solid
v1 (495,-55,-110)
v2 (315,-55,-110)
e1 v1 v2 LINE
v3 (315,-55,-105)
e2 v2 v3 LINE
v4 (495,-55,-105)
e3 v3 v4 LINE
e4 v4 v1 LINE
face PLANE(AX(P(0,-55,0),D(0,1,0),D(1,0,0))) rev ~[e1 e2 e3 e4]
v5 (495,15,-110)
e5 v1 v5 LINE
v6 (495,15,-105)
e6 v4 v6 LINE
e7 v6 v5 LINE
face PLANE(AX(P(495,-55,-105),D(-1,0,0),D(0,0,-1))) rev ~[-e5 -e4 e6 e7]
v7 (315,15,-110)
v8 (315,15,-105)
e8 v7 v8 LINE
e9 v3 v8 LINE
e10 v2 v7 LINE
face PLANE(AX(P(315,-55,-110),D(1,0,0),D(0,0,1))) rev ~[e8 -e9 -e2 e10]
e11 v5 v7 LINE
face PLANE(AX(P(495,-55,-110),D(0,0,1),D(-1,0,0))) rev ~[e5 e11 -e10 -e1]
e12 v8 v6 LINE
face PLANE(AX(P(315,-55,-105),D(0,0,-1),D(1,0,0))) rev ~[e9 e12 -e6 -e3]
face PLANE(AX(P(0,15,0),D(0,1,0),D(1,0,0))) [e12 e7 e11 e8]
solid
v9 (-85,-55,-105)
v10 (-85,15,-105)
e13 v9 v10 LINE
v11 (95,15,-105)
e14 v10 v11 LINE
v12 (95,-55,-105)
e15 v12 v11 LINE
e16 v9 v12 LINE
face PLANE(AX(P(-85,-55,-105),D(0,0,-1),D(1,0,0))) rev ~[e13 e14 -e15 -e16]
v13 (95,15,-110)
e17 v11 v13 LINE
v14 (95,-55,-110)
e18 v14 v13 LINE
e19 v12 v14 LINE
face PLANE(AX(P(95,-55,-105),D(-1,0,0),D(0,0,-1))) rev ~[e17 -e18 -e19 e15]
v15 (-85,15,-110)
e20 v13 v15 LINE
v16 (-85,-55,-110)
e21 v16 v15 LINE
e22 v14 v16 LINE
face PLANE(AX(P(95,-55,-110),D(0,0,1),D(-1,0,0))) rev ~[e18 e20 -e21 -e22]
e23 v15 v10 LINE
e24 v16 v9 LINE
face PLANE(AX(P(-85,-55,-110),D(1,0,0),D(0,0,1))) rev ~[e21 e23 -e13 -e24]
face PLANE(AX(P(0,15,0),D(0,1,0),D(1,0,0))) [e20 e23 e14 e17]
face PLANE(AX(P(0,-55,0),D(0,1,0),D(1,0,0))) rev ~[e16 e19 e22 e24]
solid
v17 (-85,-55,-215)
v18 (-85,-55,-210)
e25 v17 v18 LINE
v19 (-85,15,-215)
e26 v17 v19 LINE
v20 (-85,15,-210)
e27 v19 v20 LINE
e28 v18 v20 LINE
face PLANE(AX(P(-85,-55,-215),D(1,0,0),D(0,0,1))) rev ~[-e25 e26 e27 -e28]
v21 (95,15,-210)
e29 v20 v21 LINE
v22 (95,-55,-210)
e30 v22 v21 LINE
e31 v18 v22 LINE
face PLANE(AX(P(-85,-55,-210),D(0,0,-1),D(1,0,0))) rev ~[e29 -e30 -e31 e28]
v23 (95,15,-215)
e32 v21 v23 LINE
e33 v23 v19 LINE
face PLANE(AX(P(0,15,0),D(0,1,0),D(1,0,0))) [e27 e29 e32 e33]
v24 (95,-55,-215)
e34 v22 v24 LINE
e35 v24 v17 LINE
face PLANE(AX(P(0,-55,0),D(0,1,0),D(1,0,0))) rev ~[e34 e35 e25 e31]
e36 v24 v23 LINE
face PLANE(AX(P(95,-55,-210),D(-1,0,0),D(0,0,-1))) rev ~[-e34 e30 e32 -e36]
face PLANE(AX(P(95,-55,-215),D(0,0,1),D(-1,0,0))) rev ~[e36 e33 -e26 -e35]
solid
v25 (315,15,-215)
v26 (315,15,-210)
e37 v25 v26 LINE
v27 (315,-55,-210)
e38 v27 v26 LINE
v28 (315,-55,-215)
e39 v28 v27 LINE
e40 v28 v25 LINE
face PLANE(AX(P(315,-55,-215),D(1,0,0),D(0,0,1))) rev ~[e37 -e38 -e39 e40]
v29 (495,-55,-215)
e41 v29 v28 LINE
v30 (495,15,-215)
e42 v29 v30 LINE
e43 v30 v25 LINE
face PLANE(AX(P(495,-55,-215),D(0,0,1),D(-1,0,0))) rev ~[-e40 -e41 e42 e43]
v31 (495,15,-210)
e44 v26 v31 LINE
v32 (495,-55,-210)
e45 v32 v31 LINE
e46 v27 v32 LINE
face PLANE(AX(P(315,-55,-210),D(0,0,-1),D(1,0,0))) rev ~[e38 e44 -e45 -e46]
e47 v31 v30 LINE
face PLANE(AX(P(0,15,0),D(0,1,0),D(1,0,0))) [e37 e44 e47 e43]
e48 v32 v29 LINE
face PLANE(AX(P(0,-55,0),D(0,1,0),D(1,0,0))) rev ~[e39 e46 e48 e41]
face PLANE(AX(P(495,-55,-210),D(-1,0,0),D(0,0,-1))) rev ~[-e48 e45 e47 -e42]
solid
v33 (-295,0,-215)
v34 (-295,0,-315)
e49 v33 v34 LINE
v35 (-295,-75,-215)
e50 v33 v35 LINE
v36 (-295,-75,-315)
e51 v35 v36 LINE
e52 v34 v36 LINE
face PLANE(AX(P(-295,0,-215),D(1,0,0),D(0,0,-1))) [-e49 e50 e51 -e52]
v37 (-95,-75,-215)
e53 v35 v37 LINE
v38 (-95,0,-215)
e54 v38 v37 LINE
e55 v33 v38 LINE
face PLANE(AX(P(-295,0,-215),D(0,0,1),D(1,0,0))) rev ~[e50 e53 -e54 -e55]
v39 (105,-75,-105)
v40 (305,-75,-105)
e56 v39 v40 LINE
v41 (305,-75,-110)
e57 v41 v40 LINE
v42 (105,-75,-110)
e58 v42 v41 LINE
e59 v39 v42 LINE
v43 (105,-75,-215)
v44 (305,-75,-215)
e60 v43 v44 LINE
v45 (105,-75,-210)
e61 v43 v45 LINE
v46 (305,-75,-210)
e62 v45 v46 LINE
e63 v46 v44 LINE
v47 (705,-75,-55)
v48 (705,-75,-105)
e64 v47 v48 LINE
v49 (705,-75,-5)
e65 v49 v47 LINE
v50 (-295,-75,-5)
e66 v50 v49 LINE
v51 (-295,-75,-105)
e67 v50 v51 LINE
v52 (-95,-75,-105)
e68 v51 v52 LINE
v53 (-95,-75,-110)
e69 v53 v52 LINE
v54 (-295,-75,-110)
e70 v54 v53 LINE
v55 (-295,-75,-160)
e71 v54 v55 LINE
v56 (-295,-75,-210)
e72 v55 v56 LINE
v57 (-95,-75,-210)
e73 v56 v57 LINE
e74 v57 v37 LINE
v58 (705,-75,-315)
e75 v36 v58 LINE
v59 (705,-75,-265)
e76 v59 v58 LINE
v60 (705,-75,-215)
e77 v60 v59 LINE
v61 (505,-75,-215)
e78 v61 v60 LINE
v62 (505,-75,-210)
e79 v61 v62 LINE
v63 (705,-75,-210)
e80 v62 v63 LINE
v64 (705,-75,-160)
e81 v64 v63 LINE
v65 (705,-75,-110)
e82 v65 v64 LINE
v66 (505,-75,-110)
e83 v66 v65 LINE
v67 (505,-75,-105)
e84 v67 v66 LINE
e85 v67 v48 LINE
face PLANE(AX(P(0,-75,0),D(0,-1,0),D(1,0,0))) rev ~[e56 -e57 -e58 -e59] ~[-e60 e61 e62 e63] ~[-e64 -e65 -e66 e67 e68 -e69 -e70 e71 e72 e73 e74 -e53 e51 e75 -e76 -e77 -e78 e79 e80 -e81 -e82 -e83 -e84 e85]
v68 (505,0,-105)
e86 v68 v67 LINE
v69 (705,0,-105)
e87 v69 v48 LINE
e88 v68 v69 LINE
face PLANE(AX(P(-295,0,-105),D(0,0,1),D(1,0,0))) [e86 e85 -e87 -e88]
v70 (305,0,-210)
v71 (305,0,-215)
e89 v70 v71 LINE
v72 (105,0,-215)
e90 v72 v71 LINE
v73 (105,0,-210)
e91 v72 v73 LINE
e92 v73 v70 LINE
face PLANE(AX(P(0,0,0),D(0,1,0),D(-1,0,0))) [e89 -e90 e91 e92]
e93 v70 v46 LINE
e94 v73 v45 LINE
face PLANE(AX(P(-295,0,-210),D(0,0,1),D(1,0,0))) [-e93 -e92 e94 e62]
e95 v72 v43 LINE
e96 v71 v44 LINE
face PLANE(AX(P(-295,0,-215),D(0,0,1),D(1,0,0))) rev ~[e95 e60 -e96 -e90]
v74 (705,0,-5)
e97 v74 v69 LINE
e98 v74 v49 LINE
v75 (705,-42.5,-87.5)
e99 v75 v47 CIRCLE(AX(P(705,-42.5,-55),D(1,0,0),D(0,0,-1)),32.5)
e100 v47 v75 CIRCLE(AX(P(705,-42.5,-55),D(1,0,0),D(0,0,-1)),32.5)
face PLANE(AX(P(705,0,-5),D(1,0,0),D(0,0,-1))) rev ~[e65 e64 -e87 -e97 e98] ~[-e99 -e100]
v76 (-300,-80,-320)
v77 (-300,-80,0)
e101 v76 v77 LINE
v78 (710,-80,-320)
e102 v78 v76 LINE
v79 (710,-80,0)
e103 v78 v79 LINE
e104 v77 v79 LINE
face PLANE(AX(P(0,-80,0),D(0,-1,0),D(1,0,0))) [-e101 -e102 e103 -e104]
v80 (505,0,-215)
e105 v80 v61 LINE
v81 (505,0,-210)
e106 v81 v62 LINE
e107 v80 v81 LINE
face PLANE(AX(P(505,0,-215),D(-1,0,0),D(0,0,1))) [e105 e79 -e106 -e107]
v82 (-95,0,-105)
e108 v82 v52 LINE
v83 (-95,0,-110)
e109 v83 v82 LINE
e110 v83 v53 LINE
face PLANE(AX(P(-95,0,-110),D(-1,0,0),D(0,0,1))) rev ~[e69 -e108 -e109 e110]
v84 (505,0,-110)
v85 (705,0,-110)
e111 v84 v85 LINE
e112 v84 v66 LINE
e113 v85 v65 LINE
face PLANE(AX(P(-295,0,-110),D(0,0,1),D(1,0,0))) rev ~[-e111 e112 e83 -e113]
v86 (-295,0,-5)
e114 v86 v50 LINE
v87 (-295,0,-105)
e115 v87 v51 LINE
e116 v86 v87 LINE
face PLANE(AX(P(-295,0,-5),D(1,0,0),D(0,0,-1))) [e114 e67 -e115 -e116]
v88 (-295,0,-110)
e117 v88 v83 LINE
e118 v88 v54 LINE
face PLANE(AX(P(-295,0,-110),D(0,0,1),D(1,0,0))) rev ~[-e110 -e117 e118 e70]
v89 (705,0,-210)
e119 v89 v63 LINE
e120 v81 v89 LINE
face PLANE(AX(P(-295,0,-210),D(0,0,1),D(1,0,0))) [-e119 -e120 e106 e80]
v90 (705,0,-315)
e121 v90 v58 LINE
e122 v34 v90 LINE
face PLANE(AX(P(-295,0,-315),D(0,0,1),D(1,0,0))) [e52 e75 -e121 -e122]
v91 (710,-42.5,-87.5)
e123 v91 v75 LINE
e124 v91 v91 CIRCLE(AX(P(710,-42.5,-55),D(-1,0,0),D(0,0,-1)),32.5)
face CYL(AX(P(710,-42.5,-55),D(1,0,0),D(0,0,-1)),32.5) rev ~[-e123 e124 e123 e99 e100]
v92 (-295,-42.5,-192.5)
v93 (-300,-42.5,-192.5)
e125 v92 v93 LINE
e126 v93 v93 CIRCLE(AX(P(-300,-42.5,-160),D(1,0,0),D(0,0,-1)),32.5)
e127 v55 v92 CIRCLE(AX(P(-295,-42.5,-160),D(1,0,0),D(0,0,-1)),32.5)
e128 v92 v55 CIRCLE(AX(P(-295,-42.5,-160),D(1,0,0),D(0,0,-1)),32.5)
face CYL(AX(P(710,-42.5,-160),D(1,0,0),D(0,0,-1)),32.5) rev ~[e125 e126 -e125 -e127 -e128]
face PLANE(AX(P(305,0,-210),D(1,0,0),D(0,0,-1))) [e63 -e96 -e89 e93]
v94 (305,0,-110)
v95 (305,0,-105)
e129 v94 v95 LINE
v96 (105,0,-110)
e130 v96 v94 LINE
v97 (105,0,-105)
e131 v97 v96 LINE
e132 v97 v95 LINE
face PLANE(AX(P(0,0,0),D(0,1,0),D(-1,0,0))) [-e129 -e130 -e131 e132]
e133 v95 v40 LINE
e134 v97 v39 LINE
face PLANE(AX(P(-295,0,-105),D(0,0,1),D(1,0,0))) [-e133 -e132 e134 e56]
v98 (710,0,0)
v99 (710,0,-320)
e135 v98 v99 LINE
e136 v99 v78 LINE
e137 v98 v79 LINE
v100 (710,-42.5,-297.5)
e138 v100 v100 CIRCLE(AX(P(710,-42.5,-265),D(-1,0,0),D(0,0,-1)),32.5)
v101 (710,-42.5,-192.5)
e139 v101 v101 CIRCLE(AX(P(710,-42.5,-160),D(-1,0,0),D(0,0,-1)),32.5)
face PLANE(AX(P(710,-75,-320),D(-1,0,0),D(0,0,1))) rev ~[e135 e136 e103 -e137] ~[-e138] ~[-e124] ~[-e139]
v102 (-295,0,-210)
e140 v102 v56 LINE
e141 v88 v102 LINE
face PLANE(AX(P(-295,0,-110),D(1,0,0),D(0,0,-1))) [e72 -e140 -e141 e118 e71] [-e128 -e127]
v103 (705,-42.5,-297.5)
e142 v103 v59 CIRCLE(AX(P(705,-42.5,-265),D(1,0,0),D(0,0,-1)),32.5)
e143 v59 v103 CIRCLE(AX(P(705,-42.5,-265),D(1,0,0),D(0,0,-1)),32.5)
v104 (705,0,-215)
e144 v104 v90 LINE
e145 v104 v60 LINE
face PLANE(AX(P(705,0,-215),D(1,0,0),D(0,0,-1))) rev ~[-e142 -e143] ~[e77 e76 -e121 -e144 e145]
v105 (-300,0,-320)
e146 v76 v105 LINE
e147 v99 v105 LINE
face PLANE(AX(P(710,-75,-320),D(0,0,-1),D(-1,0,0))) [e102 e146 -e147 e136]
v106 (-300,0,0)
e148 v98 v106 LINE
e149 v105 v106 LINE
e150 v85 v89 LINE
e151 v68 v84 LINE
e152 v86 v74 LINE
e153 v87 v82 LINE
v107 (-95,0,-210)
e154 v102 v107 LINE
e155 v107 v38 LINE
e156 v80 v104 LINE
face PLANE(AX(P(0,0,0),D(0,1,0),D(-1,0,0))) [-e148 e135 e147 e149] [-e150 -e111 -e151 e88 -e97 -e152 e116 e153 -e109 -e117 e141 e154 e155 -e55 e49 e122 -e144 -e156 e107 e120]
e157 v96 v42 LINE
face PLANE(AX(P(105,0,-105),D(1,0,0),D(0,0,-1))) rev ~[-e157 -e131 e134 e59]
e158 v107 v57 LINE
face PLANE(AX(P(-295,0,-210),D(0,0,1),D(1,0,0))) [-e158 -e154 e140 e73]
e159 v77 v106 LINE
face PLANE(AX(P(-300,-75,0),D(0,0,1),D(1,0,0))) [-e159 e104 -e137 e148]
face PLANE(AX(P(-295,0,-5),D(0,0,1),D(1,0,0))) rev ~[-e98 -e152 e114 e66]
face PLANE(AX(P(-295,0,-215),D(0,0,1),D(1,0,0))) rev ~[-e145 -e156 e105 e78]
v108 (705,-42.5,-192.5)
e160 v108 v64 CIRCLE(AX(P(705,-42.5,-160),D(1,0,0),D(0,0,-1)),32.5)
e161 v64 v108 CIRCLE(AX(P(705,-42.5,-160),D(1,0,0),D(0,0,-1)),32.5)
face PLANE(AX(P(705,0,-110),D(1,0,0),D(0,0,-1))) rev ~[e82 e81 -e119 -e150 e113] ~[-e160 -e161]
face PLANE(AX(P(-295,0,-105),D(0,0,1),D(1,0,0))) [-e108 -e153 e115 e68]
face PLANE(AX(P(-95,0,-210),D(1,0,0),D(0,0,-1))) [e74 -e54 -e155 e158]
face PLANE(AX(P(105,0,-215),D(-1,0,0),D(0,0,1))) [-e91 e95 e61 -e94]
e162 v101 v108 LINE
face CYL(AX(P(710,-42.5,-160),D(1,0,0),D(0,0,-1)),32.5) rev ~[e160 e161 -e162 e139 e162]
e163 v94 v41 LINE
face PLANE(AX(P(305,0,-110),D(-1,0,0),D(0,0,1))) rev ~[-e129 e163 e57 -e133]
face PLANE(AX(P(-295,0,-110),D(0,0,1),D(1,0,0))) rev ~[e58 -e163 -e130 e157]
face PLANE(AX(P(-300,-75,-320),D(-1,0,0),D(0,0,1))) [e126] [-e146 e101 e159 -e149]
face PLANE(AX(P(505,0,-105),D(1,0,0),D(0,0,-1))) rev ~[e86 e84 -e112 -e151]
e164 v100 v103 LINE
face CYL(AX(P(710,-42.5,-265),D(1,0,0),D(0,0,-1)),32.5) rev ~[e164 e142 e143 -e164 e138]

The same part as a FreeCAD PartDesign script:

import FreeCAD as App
import Part
import Sketcher
from FreeCAD import Vector


def add_polygon(sketch, points):
    """Adds a closed chain of lines whose ends are joined by coincident constraints."""
    first, n = sketch.GeometryCount, len(points)
    for a, b in zip(points, points[1:] + points[:1]):
        sketch.addGeometry(Part.LineSegment(App.Vector(*a, 0), App.Vector(*b, 0)), False)
    for i in range(n):
        sketch.addConstraint(Sketcher.Constraint("Coincident", first + i, 2, first + (i + 1) % n, 1))

doc = App.newDocument("Part")
body = doc.addObject("PartDesign::Body", "Body")
body.AllowCompound = True

# Sketch on XZ plane
sketch1 = body.newObject("Sketcher::SketchObject", "Sketch")
sketch1.AttachmentSupport = (doc.getObject("XZ_Plane"), [""])
sketch1.MapMode = "FlatFace"
add_polygon(sketch1, [(710, 0), (710, -320), (-300, -320), (-300, 0)])  # lines 0-3
add_polygon(sketch1, [(705, -5), (-295, -5), (-295, -105), (705, -105)])  # lines 4-7
add_polygon(sketch1, [(705, -110), (-295, -110), (-295, -210), (705, -210)])  # lines 8-11
add_polygon(sketch1, [(705, -215), (-295, -215), (-295, -315), (705, -315)])  # lines 12-15
sketch1.addConstraint([
    Sketcher.Constraint("Vertical", 0),
    Sketcher.Constraint("Horizontal", 1),
    Sketcher.Constraint("Vertical", 2),
    Sketcher.Constraint("Horizontal", 3),
    Sketcher.Constraint("Horizontal", 4),
    Sketcher.Constraint("Vertical", 5),
    Sketcher.Constraint("Horizontal", 6),
    Sketcher.Constraint("Vertical", 7),
    Sketcher.Constraint("Horizontal", 8),
    Sketcher.Constraint("Vertical", 9),
    Sketcher.Constraint("Horizontal", 10),
    Sketcher.Constraint("Vertical", 11),
    Sketcher.Constraint("Horizontal", 12),
    Sketcher.Constraint("Vertical", 13),
    Sketcher.Constraint("Horizontal", 14),
    Sketcher.Constraint("Vertical", 15),
    Sketcher.Constraint("PointOnObject", 2, 2, -1),
    Sketcher.Constraint("Vertical", 5, 2, 8, 2),
    Sketcher.Constraint("Vertical", 7, 2, 10, 2),
    Sketcher.Constraint("Vertical", 9, 2, 12, 2),
    Sketcher.Constraint("Vertical", 11, 2, 14, 2),
    Sketcher.Constraint("Equal", 7, 9),
    Sketcher.Constraint("Equal", 11, 13),
    Sketcher.Constraint("DistanceX", 1, 2, 1, 1, 1010.0),
    Sketcher.Constraint("DistanceY", 5, 2, 5, 1, 100.0),
    Sketcher.Constraint("DistanceY", 4, 2, -1, 1, 5.0),
    Sketcher.Constraint("DistanceX", 2, 2, 4, 2, 5.0),
    Sketcher.Constraint("DistanceX", 6, 2, 3, 2, 5.0),
    Sketcher.Constraint("DistanceY", 8, 2, 5, 2, 5.0),
    Sketcher.Constraint("DistanceY", 12, 2, 9, 2, 5.0),
    Sketcher.Constraint("DistanceY", 1, 2, 13, 2, 5.0),
    Sketcher.Constraint("DistanceX", -1, 1, 0, 2, 710.0),
])
pad1 = body.newObject("PartDesign::Pad", "Pad")
pad1.Profile = sketch1
pad1.Length = 75

# Sketch on XZ plane
sketch2 = body.newObject("Sketcher::SketchObject", "Sketch001")
sketch2.AttachmentSupport = (doc.getObject("XZ_Plane"), [""])
sketch2.MapMode = "FlatFace"
sketch2.AttachmentOffset = App.Placement(Vector(0, 0, 75), App.Rotation())
add_polygon(sketch2, [(-300, -320), (710, -320), (710, 0), (-300, 0)])  # lines 0-3
sketch2.addConstraint([
    Sketcher.Constraint("Horizontal", 0),
    Sketcher.Constraint("Vertical", 1),
    Sketcher.Constraint("Horizontal", 2),
    Sketcher.Constraint("Vertical", 3),
    Sketcher.Constraint("PointOnObject", 1, 2, -1),
    Sketcher.Constraint("DistanceX", 0, 1, 0, 2, 1010.0),
    Sketcher.Constraint("DistanceY", 1, 1, 1, 2, 320.0),
    Sketcher.Constraint("DistanceX", -1, 1, 0, 2, 710.0),
])
pad2 = body.newObject("PartDesign::Pad", "Pad001")
pad2.Profile = sketch2
pad2.Length = 5

# Sketch on YZ plane
sketch3 = body.newObject("Sketcher::SketchObject", "Sketch002")
sketch3.AttachmentSupport = (doc.getObject("YZ_Plane"), [""])
sketch3.MapMode = "FlatFace"
sketch3.AttachmentOffset = App.Placement(Vector(0, 0, 710), App.Rotation())
sketch3.addGeometry([
    Part.Circle(Vector(-42, -55, 0), Vector(0, 0, 1), 32),
    Part.Circle(Vector(-42, -265, 0), Vector(0, 0, 1), 32),
], False)
sketch3.addConstraint([
    Sketcher.Constraint("Equal", 0, 1),
    Sketcher.Constraint("Vertical", 0, 3, 1, 3),
    Sketcher.Constraint("Diameter", 0, 65.0),
    Sketcher.Constraint("DistanceY", 0, 3, -1, 1, 55.0),
    Sketcher.Constraint("DistanceY", 1, 3, -1, 1, 265.0),
    Sketcher.Constraint("DistanceX", 0, 3, -1, 1, 42.5),
])
pocket1 = body.newObject("PartDesign::Pocket", "Pocket")
pocket1.Profile = sketch3
pocket1.Length = 75

# Sketch on YZ plane
sketch4 = body.newObject("Sketcher::SketchObject", "Sketch003")
sketch4.AttachmentSupport = (doc.getObject("YZ_Plane"), [""])
sketch4.MapMode = "FlatFace"
sketch4.AttachmentOffset = App.Placement(Vector(0, 0, 710), App.Rotation())
sketch4.addGeometry(Part.Circle(Vector(-42, -160, 0), Vector(0, 0, 1), 32), False)
sketch4.addConstraint([
    Sketcher.Constraint("Diameter", 0, 65.0),
    Sketcher.Constraint("DistanceY", 0, 3, -1, 1, 160.0),
    Sketcher.Constraint("DistanceX", 0, 3, -1, 1, 42.5),
])
pocket2 = body.newObject("PartDesign::Pocket", "Pocket001")
pocket2.Profile = sketch4
pocket2.Type = "ThroughAll"

# Sketch on XZ plane
sketch5 = body.newObject("Sketcher::SketchObject", "Sketch004")
sketch5.AttachmentSupport = (doc.getObject("XZ_Plane"), [""])
sketch5.MapMode = "FlatFace"
add_polygon(sketch5, [(305, -105), (505, -105), (505, -110), (305, -110)])  # lines 0-3
add_polygon(sketch5, [(-95, -105), (105, -105), (105, -110), (-95, -110)])  # lines 4-7
add_polygon(sketch5, [(305, -210), (505, -210), (505, -215), (305, -215)])  # lines 8-11
add_polygon(sketch5, [(-95, -210), (105, -210), (105, -215), (-95, -215)])  # lines 12-15
sketch5.addConstraint([
    Sketcher.Constraint("Horizontal", 0),
    Sketcher.Constraint("Vertical", 1),
    Sketcher.Constraint("Horizontal", 2),
    Sketcher.Constraint("Vertical", 3),
    Sketcher.Constraint("Horizontal", 4),
    Sketcher.Constraint("Vertical", 5),
    Sketcher.Constraint("Horizontal", 6),
    Sketcher.Constraint("Vertical", 7),
    Sketcher.Constraint("Horizontal", 8),
    Sketcher.Constraint("Vertical", 9),
    Sketcher.Constraint("Horizontal", 10),
    Sketcher.Constraint("Vertical", 11),
    Sketcher.Constraint("Horizontal", 12),
    Sketcher.Constraint("Vertical", 13),
    Sketcher.Constraint("Horizontal", 14),
    Sketcher.Constraint("Vertical", 15),
    Sketcher.Constraint("Horizontal", 3, 2, 4, 2),
    Sketcher.Constraint("Horizontal", 2, 2, 5, 2),
    Sketcher.Constraint("Horizontal", 11, 2, 12, 2),
    Sketcher.Constraint("Horizontal", 10, 2, 13, 2),
    Sketcher.Constraint("Vertical", 1, 2, 8, 2),
    Sketcher.Constraint("Vertical", 3, 2, 10, 2),
    Sketcher.Constraint("Vertical", 5, 2, 12, 2),
    Sketcher.Constraint("Vertical", 7, 2, 14, 2),
    Sketcher.Constraint("Equal", 2, 4),
    Sketcher.Constraint("Equal", 7, 9),
    Sketcher.Constraint("DistanceX", 0, 1, 0, 2, 200.0),
    Sketcher.Constraint("DistanceX", 4, 2, 3, 2, 200.0),
    Sketcher.Constraint("DistanceY", 1, 2, 1, 1, 5.0),
    Sketcher.Constraint("DistanceX", -1, 1, 0, 2, 505.0),
    Sketcher.Constraint("DistanceY", 0, 2, -1, 1, 105.0),
    Sketcher.Constraint("DistanceY", 8, 2, -1, 1, 210.0),
])
pocket3 = body.newObject("PartDesign::Pocket", "Pocket002")
pocket3.Profile = sketch5
pocket3.Length = 75
pocket3.Reversed = True

# Sketch on XZ plane
sketch6 = body.newObject("Sketcher::SketchObject", "Sketch005")
sketch6.AttachmentSupport = (doc.getObject("XZ_Plane"), [""])
sketch6.MapMode = "FlatFace"
sketch6.AttachmentOffset = App.Placement(Vector(0, 0, 55), App.Rotation())
add_polygon(sketch6, [(-85, -215), (-85, -210), (95, -210), (95, -215)])  # lines 0-3
add_polygon(sketch6, [(-85, -110), (-85, -105), (95, -105), (95, -110)])  # lines 4-7
add_polygon(sketch6, [(315, -110), (315, -105), (495, -105), (495, -110)])  # lines 8-11
add_polygon(sketch6, [(315, -215), (315, -210), (495, -210), (495, -215)])  # lines 12-15
sketch6.addConstraint([
    Sketcher.Constraint("Vertical", 0),
    Sketcher.Constraint("Horizontal", 1),
    Sketcher.Constraint("Vertical", 2),
    Sketcher.Constraint("Horizontal", 3),
    Sketcher.Constraint("Vertical", 4),
    Sketcher.Constraint("Horizontal", 5),
    Sketcher.Constraint("Vertical", 6),
    Sketcher.Constraint("Horizontal", 7),
    Sketcher.Constraint("Vertical", 8),
    Sketcher.Constraint("Horizontal", 9),
    Sketcher.Constraint("Vertical", 10),
    Sketcher.Constraint("Horizontal", 11),
    Sketcher.Constraint("Vertical", 12),
    Sketcher.Constraint("Horizontal", 13),
    Sketcher.Constraint("Vertical", 14),
    Sketcher.Constraint("Horizontal", 15),
    Sketcher.Constraint("Horizontal", 5, 2, 8, 2),
    Sketcher.Constraint("Horizontal", 7, 2, 10, 2),
    Sketcher.Constraint("Horizontal", 1, 2, 12, 2),
    Sketcher.Constraint("Horizontal", 3, 2, 14, 2),
    Sketcher.Constraint("Vertical", 3, 2, 4, 2),
    Sketcher.Constraint("Vertical", 2, 2, 5, 2),
    Sketcher.Constraint("Vertical", 11, 2, 12, 2),
    Sketcher.Constraint("Vertical", 10, 2, 13, 2),
    Sketcher.Constraint("Equal", 7, 9),
    Sketcher.Constraint("Equal", 2, 4),
    Sketcher.Constraint("DistanceX", 1, 1, 1, 2, 180.0),
    Sketcher.Constraint("DistanceY", 0, 1, 0, 2, 5.0),
    Sketcher.Constraint("DistanceX", 0, 2, -1, 1, 85.0),
    Sketcher.Constraint("DistanceY", 0, 2, -1, 1, 210.0),
    Sketcher.Constraint("DistanceY", 4, 2, -1, 1, 105.0),
    Sketcher.Constraint("DistanceX", -1, 1, 8, 2, 315.0),
])
pad3 = body.newObject("PartDesign::Pad", "Pad002")
pad3.Profile = sketch6
pad3.Length = 70
pad3.Reversed = True

doc.recompute()
